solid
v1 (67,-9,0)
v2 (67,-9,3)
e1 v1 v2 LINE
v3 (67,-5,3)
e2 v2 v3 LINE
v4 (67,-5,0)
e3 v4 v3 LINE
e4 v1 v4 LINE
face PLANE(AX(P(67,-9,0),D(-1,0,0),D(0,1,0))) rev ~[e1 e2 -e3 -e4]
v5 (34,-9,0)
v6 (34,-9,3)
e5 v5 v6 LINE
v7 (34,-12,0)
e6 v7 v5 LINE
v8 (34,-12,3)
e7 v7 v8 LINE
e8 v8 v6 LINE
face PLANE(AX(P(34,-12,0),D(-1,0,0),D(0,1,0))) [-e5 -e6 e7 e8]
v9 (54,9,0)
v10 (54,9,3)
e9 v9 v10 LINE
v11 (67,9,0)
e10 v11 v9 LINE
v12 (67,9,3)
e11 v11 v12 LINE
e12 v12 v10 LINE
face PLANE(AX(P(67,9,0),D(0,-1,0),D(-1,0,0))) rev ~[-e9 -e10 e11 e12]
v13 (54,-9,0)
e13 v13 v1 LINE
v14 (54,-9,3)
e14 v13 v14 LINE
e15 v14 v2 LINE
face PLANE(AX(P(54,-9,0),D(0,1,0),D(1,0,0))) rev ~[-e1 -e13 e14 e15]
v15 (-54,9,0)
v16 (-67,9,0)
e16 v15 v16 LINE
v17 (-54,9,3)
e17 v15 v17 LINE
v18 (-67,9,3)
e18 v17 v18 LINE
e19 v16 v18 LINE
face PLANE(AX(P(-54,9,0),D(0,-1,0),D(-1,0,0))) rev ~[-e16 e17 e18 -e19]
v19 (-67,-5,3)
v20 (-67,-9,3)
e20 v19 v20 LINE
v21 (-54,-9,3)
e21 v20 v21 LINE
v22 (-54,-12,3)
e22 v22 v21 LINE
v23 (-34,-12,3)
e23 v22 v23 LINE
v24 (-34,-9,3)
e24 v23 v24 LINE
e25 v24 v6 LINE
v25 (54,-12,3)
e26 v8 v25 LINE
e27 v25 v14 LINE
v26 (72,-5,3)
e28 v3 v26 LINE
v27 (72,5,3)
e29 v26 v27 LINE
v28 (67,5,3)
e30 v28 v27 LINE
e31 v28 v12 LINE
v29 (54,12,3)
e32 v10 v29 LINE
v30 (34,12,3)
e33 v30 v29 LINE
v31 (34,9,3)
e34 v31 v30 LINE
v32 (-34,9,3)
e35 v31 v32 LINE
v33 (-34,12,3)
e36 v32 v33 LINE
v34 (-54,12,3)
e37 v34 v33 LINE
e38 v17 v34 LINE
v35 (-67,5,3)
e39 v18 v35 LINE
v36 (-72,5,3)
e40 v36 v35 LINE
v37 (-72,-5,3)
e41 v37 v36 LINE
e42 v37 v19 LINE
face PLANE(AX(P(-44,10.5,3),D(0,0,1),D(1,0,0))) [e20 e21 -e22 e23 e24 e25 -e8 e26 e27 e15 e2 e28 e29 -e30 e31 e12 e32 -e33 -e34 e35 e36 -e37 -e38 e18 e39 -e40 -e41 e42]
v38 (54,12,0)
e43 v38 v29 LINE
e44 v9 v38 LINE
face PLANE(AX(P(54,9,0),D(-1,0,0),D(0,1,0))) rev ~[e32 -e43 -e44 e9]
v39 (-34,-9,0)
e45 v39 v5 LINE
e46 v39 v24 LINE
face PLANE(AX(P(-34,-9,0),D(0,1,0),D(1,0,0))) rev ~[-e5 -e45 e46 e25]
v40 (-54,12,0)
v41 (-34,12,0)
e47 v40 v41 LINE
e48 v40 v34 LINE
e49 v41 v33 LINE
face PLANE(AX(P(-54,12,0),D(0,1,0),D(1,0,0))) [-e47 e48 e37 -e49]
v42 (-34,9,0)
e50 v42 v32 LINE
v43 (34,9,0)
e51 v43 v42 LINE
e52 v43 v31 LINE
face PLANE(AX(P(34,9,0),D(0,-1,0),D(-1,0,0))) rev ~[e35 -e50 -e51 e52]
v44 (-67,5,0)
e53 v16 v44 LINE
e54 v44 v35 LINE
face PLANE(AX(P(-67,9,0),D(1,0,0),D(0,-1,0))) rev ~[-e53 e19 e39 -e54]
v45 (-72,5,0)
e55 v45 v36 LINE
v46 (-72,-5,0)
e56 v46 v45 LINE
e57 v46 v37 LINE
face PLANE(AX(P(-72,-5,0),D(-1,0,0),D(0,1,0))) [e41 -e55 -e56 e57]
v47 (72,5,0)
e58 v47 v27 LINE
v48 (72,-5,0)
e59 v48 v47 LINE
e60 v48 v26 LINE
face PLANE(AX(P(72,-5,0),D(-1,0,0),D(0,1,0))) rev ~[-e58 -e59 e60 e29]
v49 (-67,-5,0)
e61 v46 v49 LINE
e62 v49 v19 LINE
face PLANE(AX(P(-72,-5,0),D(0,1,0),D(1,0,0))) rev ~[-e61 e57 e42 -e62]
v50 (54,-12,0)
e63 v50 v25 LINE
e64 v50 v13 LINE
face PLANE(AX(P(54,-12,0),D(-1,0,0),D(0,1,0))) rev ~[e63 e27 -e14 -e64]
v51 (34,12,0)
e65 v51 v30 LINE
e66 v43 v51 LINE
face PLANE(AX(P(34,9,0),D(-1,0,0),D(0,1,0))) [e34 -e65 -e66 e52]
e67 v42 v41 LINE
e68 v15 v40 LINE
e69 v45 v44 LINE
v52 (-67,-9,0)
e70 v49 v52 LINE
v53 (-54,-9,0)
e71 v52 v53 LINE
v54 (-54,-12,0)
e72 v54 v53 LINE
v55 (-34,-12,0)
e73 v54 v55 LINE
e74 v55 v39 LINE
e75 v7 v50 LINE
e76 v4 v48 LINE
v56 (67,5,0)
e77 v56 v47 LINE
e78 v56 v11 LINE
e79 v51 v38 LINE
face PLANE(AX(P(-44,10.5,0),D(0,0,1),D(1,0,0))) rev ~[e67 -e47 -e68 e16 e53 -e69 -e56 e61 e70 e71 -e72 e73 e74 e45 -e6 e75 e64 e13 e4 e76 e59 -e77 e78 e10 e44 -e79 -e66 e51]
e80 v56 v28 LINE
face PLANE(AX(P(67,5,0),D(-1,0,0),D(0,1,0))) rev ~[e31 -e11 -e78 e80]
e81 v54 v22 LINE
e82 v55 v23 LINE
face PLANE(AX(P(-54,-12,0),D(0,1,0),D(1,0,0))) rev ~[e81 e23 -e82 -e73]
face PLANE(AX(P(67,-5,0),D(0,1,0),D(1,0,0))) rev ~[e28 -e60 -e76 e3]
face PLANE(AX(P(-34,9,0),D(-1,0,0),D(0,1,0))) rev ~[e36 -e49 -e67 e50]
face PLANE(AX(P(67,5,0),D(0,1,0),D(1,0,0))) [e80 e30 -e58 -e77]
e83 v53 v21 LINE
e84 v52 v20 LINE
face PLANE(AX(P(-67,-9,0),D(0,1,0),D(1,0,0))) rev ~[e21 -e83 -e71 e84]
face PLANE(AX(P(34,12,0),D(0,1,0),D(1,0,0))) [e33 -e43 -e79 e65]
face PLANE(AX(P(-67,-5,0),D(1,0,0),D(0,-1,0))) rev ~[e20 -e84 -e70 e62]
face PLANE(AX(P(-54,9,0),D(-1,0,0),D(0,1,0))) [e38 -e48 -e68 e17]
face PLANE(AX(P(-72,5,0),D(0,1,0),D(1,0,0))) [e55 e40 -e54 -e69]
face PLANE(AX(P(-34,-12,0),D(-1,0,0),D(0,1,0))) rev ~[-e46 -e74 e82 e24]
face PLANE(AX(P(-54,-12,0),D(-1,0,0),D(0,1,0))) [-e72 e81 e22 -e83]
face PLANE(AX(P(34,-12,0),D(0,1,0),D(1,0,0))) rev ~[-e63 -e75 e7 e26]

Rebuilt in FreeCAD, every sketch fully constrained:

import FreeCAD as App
import Part
import Sketcher
from FreeCAD import Vector


def add_polygon(sketch, points):
    """Adds a closed chain of lines whose ends are joined by coincident constraints."""
    first, n = sketch.GeometryCount, len(points)
    for a, b in zip(points, points[1:] + points[:1]):
        sketch.addGeometry(Part.LineSegment(App.Vector(*a, 0), App.Vector(*b, 0)), False)
    for i in range(n):
        sketch.addConstraint(Sketcher.Constraint("Coincident", first + i, 2, first + (i + 1) % n, 1))

doc = App.newDocument("Part")
params = doc.addObject("Spreadsheet::Sheet", "Params")
for row, (alias, value) in enumerate([
    ("sketch1_width", "13 mm"),
    ("sketch1_width2", "5 mm"),
    ("sketch1_width3", "20 mm"),
    ("sketch1_width4", "68 mm"),
    ("sketch1_height", "3 mm"),
    ("pad1_length", "3 mm"),
], start=1):
    params.set(f"A{row}", alias)
    params.set(f"B{row}", "=" + value)
    params.setAlias(f"B{row}", alias)

body = doc.addObject("PartDesign::Body", "Body")

# Sketch on XY plane
sketch1 = body.newObject("Sketcher::SketchObject", "Sketch")
sketch1.AttachmentSupport = (doc.getObject("XY_Plane"), [""])
sketch1.MapMode = "FlatFace"
add_polygon(sketch1, [(-54, 12), (-54, 9), (-67, 9), (-67, 5), (-72, 5), (-72, -5), (-67, -5), (-67, -9), (-54, -9), (-54, -12), (-34, -12), (-34, -9), (34, -9), (34, -12), (54, -12), (54, -9), (67, -9), (67, -5), (72, -5), (72, 5), (67, 5), (67, 9), (54, 9), (54, 12), (34, 12), (34, 9), (-34, 9), (-34, 12)])  # lines 0-27
sketch1.addConstraint([
    Sketcher.Constraint("Vertical", 0),
    Sketcher.Constraint("Horizontal", 1),
    Sketcher.Constraint("Vertical", 2),
    Sketcher.Constraint("Horizontal", 3),
    Sketcher.Constraint("Vertical", 4),
    Sketcher.Constraint("Horizontal", 5),
    Sketcher.Constraint("Vertical", 6),
    Sketcher.Constraint("Horizontal", 7),
    Sketcher.Constraint("Vertical", 8),
    Sketcher.Constraint("Horizontal", 9),
    Sketcher.Constraint("Vertical", 10),
    Sketcher.Constraint("Horizontal", 11),
    Sketcher.Constraint("Vertical", 12),
    Sketcher.Constraint("Horizontal", 13),
    Sketcher.Constraint("Vertical", 14),
    Sketcher.Constraint("Horizontal", 15),
    Sketcher.Constraint("Vertical", 16),
    Sketcher.Constraint("Horizontal", 17),
    Sketcher.Constraint("Vertical", 18),
    Sketcher.Constraint("Horizontal", 19),
    Sketcher.Constraint("Vertical", 20),
    Sketcher.Constraint("Horizontal", 21),
    Sketcher.Constraint("Vertical", 22),
    Sketcher.Constraint("Horizontal", 23),
    Sketcher.Constraint("Vertical", 24),
    Sketcher.Constraint("Horizontal", 25),
    Sketcher.Constraint("Vertical", 26),
    Sketcher.Constraint("Horizontal", 27),
    Sketcher.Constraint("Symmetric", 0, 2, 14, 2, -1, 1),
    Sketcher.Constraint("Symmetric", 2, 2, 16, 2, -1, 1),
    Sketcher.Constraint("Symmetric", 4, 2, 18, 2, -1, 1),
    Sketcher.Constraint("Symmetric", 6, 2, 20, 2, -1, 1),
    Sketcher.Constraint("Symmetric", 8, 2, 22, 2, -1, 1),
    Sketcher.Constraint("Symmetric", 10, 2, 24, 2, -1, 1),
    Sketcher.Constraint("Symmetric", 12, 2, 26, 2, -1, 1),
    Sketcher.Constraint("Symmetric", 9, 2, 12, 2, -2),
    Sketcher.Constraint("Symmetric", 7, 2, 14, 2, -2),
    Sketcher.Constraint("Symmetric", 5, 2, 16, 2, -2),
    Sketcher.Constraint("Horizontal", 7, 2, 10, 2),
    Sketcher.Constraint("DistanceX", 1, 2, 1, 1, 13.0),
    Sketcher.Constraint("DistanceX", 3, 2, 3, 1, 5.0),
    Sketcher.Constraint("DistanceX", 9, 1, 9, 2, 20.0),
    Sketcher.Constraint("DistanceX", 11, 1, 11, 2, 68.0),
    Sketcher.Constraint("DistanceY", 0, 2, 0, 1, 3.0),
    Sketcher.Constraint("DistanceY", 2, 2, 2, 1, 4.0),
    Sketcher.Constraint("DistanceY", 4, 2, 4, 1, 10.0),
])
sketch1.setExpression("Constraints[67]", "Params.sketch1_width")
sketch1.setExpression("Constraints[68]", "Params.sketch1_width2")
sketch1.setExpression("Constraints[69]", "Params.sketch1_width3")
sketch1.setExpression("Constraints[70]", "Params.sketch1_width4")
sketch1.setExpression("Constraints[71]", "Params.sketch1_height")
pad1 = body.newObject("PartDesign::Pad", "Pad")
pad1.Profile = sketch1
pad1.setExpression("Length", "Params.pad1_length")

doc.recompute()
